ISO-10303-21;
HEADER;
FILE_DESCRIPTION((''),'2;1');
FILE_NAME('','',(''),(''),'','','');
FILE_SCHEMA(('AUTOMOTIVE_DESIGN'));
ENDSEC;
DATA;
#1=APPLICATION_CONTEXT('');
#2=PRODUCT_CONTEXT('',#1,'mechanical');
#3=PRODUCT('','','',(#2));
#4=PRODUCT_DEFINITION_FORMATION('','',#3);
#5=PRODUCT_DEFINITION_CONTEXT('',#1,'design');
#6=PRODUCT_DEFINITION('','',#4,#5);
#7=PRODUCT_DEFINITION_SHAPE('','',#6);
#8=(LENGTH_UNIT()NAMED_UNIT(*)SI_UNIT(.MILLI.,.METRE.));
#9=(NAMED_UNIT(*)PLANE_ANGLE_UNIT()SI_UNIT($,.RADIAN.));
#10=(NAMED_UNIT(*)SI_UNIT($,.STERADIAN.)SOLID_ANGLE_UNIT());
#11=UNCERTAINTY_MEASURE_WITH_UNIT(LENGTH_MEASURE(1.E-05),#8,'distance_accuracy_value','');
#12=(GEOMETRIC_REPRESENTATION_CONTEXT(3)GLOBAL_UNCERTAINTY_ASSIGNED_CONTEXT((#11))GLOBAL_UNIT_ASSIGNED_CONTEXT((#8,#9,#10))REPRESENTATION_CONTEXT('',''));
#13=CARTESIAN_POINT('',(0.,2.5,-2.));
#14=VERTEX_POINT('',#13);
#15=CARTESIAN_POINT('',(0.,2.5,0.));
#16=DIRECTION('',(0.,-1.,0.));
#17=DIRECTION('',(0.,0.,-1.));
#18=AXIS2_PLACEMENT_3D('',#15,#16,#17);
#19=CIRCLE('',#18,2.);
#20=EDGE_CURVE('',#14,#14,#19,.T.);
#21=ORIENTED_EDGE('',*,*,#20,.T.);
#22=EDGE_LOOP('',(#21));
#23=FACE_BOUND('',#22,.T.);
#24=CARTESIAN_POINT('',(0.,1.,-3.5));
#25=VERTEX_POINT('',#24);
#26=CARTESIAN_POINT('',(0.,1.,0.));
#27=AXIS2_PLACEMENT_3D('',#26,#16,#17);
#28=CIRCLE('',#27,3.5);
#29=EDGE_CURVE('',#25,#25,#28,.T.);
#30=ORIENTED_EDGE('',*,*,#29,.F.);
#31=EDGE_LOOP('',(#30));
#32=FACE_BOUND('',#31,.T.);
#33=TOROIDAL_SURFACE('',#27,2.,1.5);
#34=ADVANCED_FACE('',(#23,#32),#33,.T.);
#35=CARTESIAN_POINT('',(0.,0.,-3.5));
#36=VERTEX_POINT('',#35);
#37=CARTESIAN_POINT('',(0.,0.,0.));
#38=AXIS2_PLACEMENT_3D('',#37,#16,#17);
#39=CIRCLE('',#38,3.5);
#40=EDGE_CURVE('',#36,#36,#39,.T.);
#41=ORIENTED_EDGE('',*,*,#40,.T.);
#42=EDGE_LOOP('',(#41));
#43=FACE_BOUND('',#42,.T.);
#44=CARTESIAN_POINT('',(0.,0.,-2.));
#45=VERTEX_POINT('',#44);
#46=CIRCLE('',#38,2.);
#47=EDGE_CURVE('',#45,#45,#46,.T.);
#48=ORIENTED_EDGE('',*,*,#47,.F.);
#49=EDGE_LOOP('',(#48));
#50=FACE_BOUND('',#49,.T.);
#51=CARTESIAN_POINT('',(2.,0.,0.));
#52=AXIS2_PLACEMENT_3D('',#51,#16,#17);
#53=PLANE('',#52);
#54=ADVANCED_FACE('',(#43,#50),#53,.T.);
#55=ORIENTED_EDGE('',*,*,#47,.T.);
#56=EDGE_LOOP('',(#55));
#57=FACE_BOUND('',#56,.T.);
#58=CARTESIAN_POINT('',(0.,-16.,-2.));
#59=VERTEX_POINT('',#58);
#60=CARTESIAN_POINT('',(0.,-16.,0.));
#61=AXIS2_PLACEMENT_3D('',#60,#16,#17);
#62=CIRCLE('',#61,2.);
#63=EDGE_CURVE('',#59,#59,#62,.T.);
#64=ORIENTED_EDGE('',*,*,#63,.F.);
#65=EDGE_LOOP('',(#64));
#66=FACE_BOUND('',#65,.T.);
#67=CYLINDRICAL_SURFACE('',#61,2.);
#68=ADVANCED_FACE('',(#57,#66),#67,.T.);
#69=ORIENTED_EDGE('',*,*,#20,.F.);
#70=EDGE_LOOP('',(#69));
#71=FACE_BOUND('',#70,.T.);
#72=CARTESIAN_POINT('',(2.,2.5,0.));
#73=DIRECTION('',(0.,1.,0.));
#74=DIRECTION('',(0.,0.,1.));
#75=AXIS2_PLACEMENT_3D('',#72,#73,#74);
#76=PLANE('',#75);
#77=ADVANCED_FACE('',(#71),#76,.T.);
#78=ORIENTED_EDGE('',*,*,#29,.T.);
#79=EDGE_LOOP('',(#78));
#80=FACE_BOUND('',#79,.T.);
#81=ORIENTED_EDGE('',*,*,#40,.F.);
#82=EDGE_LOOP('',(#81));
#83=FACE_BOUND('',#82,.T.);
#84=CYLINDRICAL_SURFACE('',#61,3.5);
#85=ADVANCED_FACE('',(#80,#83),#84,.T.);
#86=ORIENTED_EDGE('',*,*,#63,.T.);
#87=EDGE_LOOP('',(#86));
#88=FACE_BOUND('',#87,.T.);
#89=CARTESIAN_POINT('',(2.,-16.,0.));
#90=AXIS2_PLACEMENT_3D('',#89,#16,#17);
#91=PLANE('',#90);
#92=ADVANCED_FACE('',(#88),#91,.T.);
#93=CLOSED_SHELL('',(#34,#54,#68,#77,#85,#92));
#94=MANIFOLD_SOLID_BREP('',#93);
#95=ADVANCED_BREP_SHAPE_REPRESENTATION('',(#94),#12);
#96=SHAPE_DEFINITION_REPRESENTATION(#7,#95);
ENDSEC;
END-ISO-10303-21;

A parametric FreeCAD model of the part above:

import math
import FreeCAD as App
import Part
import Sketcher
from FreeCAD import Vector
Q = App.Units.Quantity

doc = App.newDocument("Part")
body = doc.addObject("PartDesign::Body", "Body")

# Sketch on XY plane
sketch1 = body.newObject("Sketcher::SketchObject", "Sketch")
sketch1.AttachmentSupport = (doc.getObject("XY_Plane"), [""])
sketch1.MapMode = "FlatFace"
sketch1.addGeometry([
    Part.LineSegment(Vector(2, 0, 0), Vector(3.5, 0, 0)),  # 0
    Part.LineSegment(Vector(3.5, 0, 0), Vector(3.5, 1, 0)),  # 1
    Part.ArcOfCircle(Part.Circle(Vector(2, 1, 0), Vector(0, 0, 1), 1.5), math.radians(0), math.radians(90)),  # 2
    Part.LineSegment(Vector(2, 2.5, 0), Vector(0, 2.5, 0)),  # 3
    Part.LineSegment(Vector(0, 2.5, 0), Vector(0, -16, 0)),  # 4
    Part.LineSegment(Vector(0, -16, 0), Vector(2, -16, 0)),  # 5
    Part.LineSegment(Vector(2, -16, 0), Vector(2, 0, 0)),  # 6
], False)
sketch1.addConstraint([
    Sketcher.Constraint("Coincident", 0, 2, 1, 1),
    Sketcher.Constraint("Tangent", 1, 2, 2, 1),
    Sketcher.Constraint("Tangent", 2, 2, 3, 1),
    Sketcher.Constraint("Coincident", 3, 2, 4, 1),
    Sketcher.Constraint("Coincident", 4, 2, 5, 1),
    Sketcher.Constraint("Coincident", 5, 2, 6, 1),
    Sketcher.Constraint("Coincident", 6, 2, 0, 1),
    Sketcher.Constraint("Horizontal", 0),
    Sketcher.Constraint("Vertical", 1),
    Sketcher.Constraint("Horizontal", 3),
    Sketcher.Constraint("Vertical", 4),
    Sketcher.Constraint("Horizontal", 5),
    Sketcher.Constraint("Vertical", 6),
    Sketcher.Constraint("PointOnObject", 0, 2, -1),
    Sketcher.Constraint("PointOnObject", 3, 2, -2),
    Sketcher.Constraint("Vertical", 2, 2, 5, 2),
    Sketcher.Constraint("Radius", 2, Q("1.5 mm")),
    Sketcher.Constraint("DistanceX", 3, 2, 3, 1, Q("2 mm")),
    Sketcher.Constraint("DistanceY", 1, 1, 1, 2, Q("1 mm")),
    Sketcher.Constraint("DistanceY", 6, 1, 6, 2, Q("16 mm")),
])
revolution = body.newObject("PartDesign::Revolution", "Revolution")
revolution.Profile = sketch1
revolution.ReferenceAxis = (sketch1, ["V_Axis"])
revolution.Angle = 360

doc.recompute()
